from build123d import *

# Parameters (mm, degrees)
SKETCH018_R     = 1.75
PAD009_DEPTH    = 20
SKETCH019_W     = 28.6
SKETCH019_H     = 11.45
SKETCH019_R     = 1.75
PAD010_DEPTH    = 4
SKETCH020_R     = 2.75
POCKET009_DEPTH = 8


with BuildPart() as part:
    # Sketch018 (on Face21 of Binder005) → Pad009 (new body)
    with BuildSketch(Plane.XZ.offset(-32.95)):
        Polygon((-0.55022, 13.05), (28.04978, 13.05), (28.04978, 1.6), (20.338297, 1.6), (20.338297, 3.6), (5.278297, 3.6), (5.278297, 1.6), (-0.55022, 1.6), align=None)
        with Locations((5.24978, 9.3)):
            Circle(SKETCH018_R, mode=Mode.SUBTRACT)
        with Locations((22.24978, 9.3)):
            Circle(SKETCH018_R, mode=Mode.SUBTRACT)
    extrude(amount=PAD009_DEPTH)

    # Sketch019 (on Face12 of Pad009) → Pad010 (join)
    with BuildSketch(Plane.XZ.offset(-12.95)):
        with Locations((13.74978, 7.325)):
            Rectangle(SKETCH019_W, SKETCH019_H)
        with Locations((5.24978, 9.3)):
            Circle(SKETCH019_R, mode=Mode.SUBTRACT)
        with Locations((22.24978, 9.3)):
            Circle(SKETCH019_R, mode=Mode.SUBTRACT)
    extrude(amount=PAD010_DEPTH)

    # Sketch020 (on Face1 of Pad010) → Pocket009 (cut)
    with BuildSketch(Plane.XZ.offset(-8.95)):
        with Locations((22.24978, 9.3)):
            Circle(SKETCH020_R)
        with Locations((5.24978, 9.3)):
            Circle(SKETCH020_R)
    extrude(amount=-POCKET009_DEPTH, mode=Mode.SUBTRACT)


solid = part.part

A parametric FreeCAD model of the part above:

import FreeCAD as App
import Part
import Sketcher

V = App.Vector
Q = App.Units.Quantity


def add_polygon(sketch, points):
    """Adds a closed chain of lines whose ends are joined by coincident constraints."""
    first, n = sketch.GeometryCount, len(points)
    for a, b in zip(points, points[1:] + points[:1]):
        sketch.addGeometry(Part.LineSegment(App.Vector(*a, 0), App.Vector(*b, 0)), False)
    for i in range(n):
        sketch.addConstraint(Sketcher.Constraint("Coincident", first + i, 2, first + (i + 1) % n, 1))

doc = App.newDocument("Part")
body = doc.addObject("PartDesign::Body", "Body")

# Sketch on XZ plane
sketch1 = body.newObject("Sketcher::SketchObject", "Sketch")
sketch1.AttachmentSupport = (doc.getObject("XZ_Plane"), [""])
sketch1.MapMode = "FlatFace"
sketch1.AttachmentOffset = App.Placement(V(0, 0, -32.95), App.Rotation())
add_polygon(sketch1, [(28, 13.1), (-0.6, 13.1), (-0.6, 1.6), (5.3, 1.6), (5.3, 3.6), (20.3, 3.6), (20.3, 1.6), (28, 1.6)])  # lines 0-7
sketch1.addGeometry(Part.Circle(V(22.2, 9.3, 0), V(0, 0, 1), 1.8), False)  # 8
sketch1.addGeometry(Part.Circle(V(5.2, 9.3, 0), V(0, 0, 1), 1.8), False)  # 9
sketch1.addConstraint([
    Sketcher.Constraint("Horizontal", 0),
    Sketcher.Constraint("Vertical", 1),
    Sketcher.Constraint("Horizontal", 2),
    Sketcher.Constraint("Vertical", 3),
    Sketcher.Constraint("Horizontal", 4),
    Sketcher.Constraint("Vertical", 5),
    Sketcher.Constraint("Horizontal", 6),
    Sketcher.Constraint("Vertical", 7),
    Sketcher.Constraint("Equal", 8, 9),
    Sketcher.Constraint("Horizontal", 8, 3, 9, 3),
    Sketcher.Constraint("Horizontal", 2, 2, 5, 2),
    Sketcher.Constraint("Diameter", 8, Q("3.5 mm")),
    Sketcher.Constraint("DistanceY", 3, 1, 3, 2, Q("2 mm")),
    Sketcher.Constraint("DistanceX", 0, 2, 0, 1, Q("28.6 mm")),
    Sketcher.Constraint("DistanceX", 9, 3, 8, 3, Q("17 mm")),
    Sketcher.Constraint("DistanceX", 4, 1, 4, 2, Q("15.06 mm")),
    Sketcher.Constraint("DistanceY", 1, 2, 1, 1, Q("11.45 mm")),
    Sketcher.Constraint("DistanceY", -1, 1, 8, 3, Q("9.3 mm")),
    Sketcher.Constraint("DistanceY", -1, 1, 1, 2, Q("1.6 mm")),
    Sketcher.Constraint("DistanceX", 0, 2, 9, 3, Q("5.8 mm")),
    Sketcher.Constraint("DistanceX", 2, 1, 2, 2, Q("5.828517 mm")),
    Sketcher.Constraint("DistanceX", -1, 1, 8, 3, Q("22.24978 mm")),
])
pad1 = body.newObject("PartDesign::Pad", "Pad")
pad1.Profile = sketch1
pad1.Length = 20

# Sketch on XZ plane
sketch2 = body.newObject("Sketcher::SketchObject", "Sketch001")
sketch2.AttachmentSupport = (doc.getObject("XZ_Plane"), [""])
sketch2.MapMode = "FlatFace"
sketch2.AttachmentOffset = App.Placement(V(0, 0, -12.95), App.Rotation())
add_polygon(sketch2, [(-0.6, 13.1), (-0.6, 1.6), (28, 1.6), (28, 13.1)])  # lines 0-3
sketch2.addGeometry(Part.Circle(V(5.2, 9.3, 0), V(0, 0, 1), 1.8), False)  # 4
sketch2.addGeometry(Part.Circle(V(22.2, 9.3, 0), V(0, 0, 1), 1.8), False)  # 5
sketch2.addConstraint([
    Sketcher.Constraint("Vertical", 0),
    Sketcher.Constraint("Horizontal", 1),
    Sketcher.Constraint("Vertical", 2),
    Sketcher.Constraint("Horizontal", 3),
    Sketcher.Constraint("Equal", 4, 5),
    Sketcher.Constraint("Horizontal", 4, 3, 5, 3),
    Sketcher.Constraint("Diameter", 4, Q("3.5 mm")),
    Sketcher.Constraint("DistanceX", 1, 1, 1, 2, Q("28.6 mm")),
    Sketcher.Constraint("DistanceX", 4, 3, 5, 3, Q("17 mm")),
    Sketcher.Constraint("DistanceY", 0, 2, 0, 1, Q("11.45 mm")),
    Sketcher.Constraint("DistanceY", -1, 1, 4, 3, Q("9.3 mm")),
    Sketcher.Constraint("DistanceY", -1, 1, 0, 2, Q("1.6 mm")),
    Sketcher.Constraint("DistanceX", 0, 2, 4, 3, Q("5.8 mm")),
    Sketcher.Constraint("DistanceX", -1, 1, 4, 3, Q("5.24978 mm")),
])
pad2 = body.newObject("PartDesign::Pad", "Pad001")
pad2.Profile = sketch2
pad2.Length = 4

# Sketch on XZ plane
sketch3 = body.newObject("Sketcher::SketchObject", "Sketch002")
sketch3.AttachmentSupport = (doc.getObject("XZ_Plane"), [""])
sketch3.MapMode = "FlatFace"
sketch3.AttachmentOffset = App.Placement(V(0, 0, -8.95), App.Rotation())
sketch3.addGeometry([
    Part.Circle(V(22.2, 9.3, 0), V(0, 0, 1), 2.8),
    Part.Circle(V(5.2, 9.3, 0), V(0, 0, 1), 2.8),
], False)
sketch3.addConstraint([
    Sketcher.Constraint("Equal", 0, 1),
    Sketcher.Constraint("Horizontal", 0, 3, 1, 3),
    Sketcher.Constraint("Diameter", 0, Q("5.5 mm")),
    Sketcher.Constraint("DistanceX", 1, 3, 0, 3, Q("17 mm")),
    Sketcher.Constraint("DistanceY", -1, 1, 0, 3, Q("9.3 mm")),
    Sketcher.Constraint("DistanceX", -1, 1, 0, 3, Q("22.24978 mm")),
])
pocket1 = body.newObject("PartDesign::Pocket", "Pocket")
pocket1.Profile = sketch3
pocket1.Length = 8

doc.recompute()
